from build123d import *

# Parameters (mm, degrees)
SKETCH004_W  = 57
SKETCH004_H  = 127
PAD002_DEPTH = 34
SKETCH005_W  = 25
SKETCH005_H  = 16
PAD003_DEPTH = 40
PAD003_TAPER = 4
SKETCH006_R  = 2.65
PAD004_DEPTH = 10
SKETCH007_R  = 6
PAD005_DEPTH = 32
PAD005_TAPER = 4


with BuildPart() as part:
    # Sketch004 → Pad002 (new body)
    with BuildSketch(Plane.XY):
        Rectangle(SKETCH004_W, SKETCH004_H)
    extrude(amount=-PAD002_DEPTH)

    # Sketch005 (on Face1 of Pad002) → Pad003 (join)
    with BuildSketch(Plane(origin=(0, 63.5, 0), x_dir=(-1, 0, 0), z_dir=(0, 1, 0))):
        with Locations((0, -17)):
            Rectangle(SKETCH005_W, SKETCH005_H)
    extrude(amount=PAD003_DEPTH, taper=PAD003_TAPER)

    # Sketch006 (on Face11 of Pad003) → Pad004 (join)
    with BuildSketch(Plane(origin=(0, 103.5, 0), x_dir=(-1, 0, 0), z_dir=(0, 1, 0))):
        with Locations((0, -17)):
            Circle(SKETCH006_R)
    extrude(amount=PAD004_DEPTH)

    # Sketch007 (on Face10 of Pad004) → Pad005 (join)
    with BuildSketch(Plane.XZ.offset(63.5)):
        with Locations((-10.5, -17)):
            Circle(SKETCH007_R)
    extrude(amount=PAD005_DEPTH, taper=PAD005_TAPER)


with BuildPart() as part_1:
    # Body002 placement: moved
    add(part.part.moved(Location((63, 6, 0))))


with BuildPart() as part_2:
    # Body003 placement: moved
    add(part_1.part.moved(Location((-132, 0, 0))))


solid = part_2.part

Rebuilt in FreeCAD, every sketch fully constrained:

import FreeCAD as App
import Part
import Sketcher

V = App.Vector


def add_polygon(sketch, points):
    """Adds a closed chain of lines whose ends are joined by coincident constraints."""
    first, n = sketch.GeometryCount, len(points)
    for a, b in zip(points, points[1:] + points[:1]):
        sketch.addGeometry(Part.LineSegment(App.Vector(*a, 0), App.Vector(*b, 0)), False)
    for i in range(n):
        sketch.addConstraint(Sketcher.Constraint("Coincident", first + i, 2, first + (i + 1) % n, 1))

doc = App.newDocument("Part")
body = doc.addObject("PartDesign::Body", "Body")

# Sketch on XY plane
sketch1 = doc.addObject("Sketcher::SketchObject", "Sketch")
body.addObject(sketch1)
sketch1.AttachmentSupport = (doc.XY_Plane, [""])
sketch1.MapMode = "FlatFace"
add_polygon(sketch1, [(-28, 64), (-28, -64), (28, -64), (28, 64)])  # lines 0-3
sketch1.addConstraint([
    Sketcher.Constraint("Vertical", 0),
    Sketcher.Constraint("Horizontal", 1),
    Sketcher.Constraint("Vertical", 2),
    Sketcher.Constraint("Horizontal", 3),
    Sketcher.Constraint("Symmetric", 0, 2, 2, 2, -1, 1),
    Sketcher.Constraint("DistanceX", 1, 1, 1, 2, 57.0),
    Sketcher.Constraint("DistanceY", 0, 2, 0, 1, 127.0),
])
pad1 = doc.addObject("PartDesign::Pad", "Pad")
body.addObject(pad1)
pad1.Profile = sketch1
pad1.Length = 34
pad1.Reversed = True

# Sketch on XZ plane
sketch2 = doc.addObject("Sketcher::SketchObject", "Sketch001")
body.addObject(sketch2)
sketch2.AttachmentSupport = (doc.XZ_Plane, [""])
sketch2.MapMode = "FlatFace"
sketch2.AttachmentOffset = App.Placement(V(0, 0, -63.5), App.Rotation())
add_polygon(sketch2, [(12, -9), (12, -25), (-12, -25), (-12, -9)])  # lines 0-3
sketch2.addConstraint([
    Sketcher.Constraint("Vertical", 0),
    Sketcher.Constraint("Horizontal", 1),
    Sketcher.Constraint("Vertical", 2),
    Sketcher.Constraint("Horizontal", 3),
    Sketcher.Constraint("DistanceX", 1, 2, 1, 1, 25.0),
    Sketcher.Constraint("DistanceY", 0, 2, 0, 1, 16.0),
    Sketcher.Constraint("DistanceY", 0, 2, -1, 1, 25.0),
    Sketcher.Constraint("DistanceX", -1, 1, 0, 2, 12.5),
])
pad2 = doc.addObject("PartDesign::Pad", "Pad001")
body.addObject(pad2)
pad2.Profile = sketch2
pad2.Length = 40
pad2.Reversed = True
pad2.TaperAngle = -4

# Sketch on XZ plane
sketch3 = doc.addObject("Sketcher::SketchObject", "Sketch002")
body.addObject(sketch3)
sketch3.AttachmentSupport = (doc.XZ_Plane, [""])
sketch3.MapMode = "FlatFace"
sketch3.AttachmentOffset = App.Placement(V(0, 0, -103.5), App.Rotation())
sketch3.addGeometry(Part.Circle(V(0, -17, 0), V(0, 0, 1), 2.6), False)
sketch3.addConstraint([
    Sketcher.Constraint("PointOnObject", 0, 3, -2),
    Sketcher.Constraint("Diameter", 0, 5.3),
    Sketcher.Constraint("DistanceY", 0, 3, -1, 1, 17.0),
])
pad3 = doc.addObject("PartDesign::Pad", "Pad002")
body.addObject(pad3)
pad3.Profile = sketch3
pad3.Length = 10
pad3.Reversed = True

# Sketch on XZ plane
sketch4 = doc.addObject("Sketcher::SketchObject", "Sketch003")
body.addObject(sketch4)
sketch4.AttachmentSupport = (doc.XZ_Plane, [""])
sketch4.MapMode = "FlatFace"
sketch4.AttachmentOffset = App.Placement(V(0, 0, 63.5), App.Rotation())
sketch4.addGeometry(Part.Circle(V(-10, -17, 0), V(0, 0, 1), 6), False)
sketch4.addConstraint([
    Sketcher.Constraint("Diameter", 0, 12.0),
    Sketcher.Constraint("DistanceY", 0, 3, -1, 1, 17.0),
    Sketcher.Constraint("DistanceX", 0, 3, -1, 1, 10.5),
])
pad4 = doc.addObject("PartDesign::Pad", "Pad003")
body.addObject(pad4)
pad4.Profile = sketch4
pad4.Length = 32
pad4.TaperAngle = -4
body2 = doc.addObject("PartDesign::Body", "Body001")
doc.recompute()

body.Placement = App.Placement(V(63, 6, 0), App.Rotation(V(0, 0, 1), 0))
boolean = doc.addObject("PartDesign::Boolean", "Boolean")
body2.addObject(boolean)
boolean.Type = "Fuse"
boolean.addObjects([body])
body3 = doc.addObject("PartDesign::Body", "Body002")
doc.recompute()

body2.Placement = App.Placement(V(-132, 0, 0), App.Rotation(V(0, 0, 1), 0))
boolean2 = doc.addObject("PartDesign::Boolean", "Boolean001")
body3.addObject(boolean2)
boolean2.Type = "Fuse"
boolean2.addObjects([body2])

doc.recompute()
